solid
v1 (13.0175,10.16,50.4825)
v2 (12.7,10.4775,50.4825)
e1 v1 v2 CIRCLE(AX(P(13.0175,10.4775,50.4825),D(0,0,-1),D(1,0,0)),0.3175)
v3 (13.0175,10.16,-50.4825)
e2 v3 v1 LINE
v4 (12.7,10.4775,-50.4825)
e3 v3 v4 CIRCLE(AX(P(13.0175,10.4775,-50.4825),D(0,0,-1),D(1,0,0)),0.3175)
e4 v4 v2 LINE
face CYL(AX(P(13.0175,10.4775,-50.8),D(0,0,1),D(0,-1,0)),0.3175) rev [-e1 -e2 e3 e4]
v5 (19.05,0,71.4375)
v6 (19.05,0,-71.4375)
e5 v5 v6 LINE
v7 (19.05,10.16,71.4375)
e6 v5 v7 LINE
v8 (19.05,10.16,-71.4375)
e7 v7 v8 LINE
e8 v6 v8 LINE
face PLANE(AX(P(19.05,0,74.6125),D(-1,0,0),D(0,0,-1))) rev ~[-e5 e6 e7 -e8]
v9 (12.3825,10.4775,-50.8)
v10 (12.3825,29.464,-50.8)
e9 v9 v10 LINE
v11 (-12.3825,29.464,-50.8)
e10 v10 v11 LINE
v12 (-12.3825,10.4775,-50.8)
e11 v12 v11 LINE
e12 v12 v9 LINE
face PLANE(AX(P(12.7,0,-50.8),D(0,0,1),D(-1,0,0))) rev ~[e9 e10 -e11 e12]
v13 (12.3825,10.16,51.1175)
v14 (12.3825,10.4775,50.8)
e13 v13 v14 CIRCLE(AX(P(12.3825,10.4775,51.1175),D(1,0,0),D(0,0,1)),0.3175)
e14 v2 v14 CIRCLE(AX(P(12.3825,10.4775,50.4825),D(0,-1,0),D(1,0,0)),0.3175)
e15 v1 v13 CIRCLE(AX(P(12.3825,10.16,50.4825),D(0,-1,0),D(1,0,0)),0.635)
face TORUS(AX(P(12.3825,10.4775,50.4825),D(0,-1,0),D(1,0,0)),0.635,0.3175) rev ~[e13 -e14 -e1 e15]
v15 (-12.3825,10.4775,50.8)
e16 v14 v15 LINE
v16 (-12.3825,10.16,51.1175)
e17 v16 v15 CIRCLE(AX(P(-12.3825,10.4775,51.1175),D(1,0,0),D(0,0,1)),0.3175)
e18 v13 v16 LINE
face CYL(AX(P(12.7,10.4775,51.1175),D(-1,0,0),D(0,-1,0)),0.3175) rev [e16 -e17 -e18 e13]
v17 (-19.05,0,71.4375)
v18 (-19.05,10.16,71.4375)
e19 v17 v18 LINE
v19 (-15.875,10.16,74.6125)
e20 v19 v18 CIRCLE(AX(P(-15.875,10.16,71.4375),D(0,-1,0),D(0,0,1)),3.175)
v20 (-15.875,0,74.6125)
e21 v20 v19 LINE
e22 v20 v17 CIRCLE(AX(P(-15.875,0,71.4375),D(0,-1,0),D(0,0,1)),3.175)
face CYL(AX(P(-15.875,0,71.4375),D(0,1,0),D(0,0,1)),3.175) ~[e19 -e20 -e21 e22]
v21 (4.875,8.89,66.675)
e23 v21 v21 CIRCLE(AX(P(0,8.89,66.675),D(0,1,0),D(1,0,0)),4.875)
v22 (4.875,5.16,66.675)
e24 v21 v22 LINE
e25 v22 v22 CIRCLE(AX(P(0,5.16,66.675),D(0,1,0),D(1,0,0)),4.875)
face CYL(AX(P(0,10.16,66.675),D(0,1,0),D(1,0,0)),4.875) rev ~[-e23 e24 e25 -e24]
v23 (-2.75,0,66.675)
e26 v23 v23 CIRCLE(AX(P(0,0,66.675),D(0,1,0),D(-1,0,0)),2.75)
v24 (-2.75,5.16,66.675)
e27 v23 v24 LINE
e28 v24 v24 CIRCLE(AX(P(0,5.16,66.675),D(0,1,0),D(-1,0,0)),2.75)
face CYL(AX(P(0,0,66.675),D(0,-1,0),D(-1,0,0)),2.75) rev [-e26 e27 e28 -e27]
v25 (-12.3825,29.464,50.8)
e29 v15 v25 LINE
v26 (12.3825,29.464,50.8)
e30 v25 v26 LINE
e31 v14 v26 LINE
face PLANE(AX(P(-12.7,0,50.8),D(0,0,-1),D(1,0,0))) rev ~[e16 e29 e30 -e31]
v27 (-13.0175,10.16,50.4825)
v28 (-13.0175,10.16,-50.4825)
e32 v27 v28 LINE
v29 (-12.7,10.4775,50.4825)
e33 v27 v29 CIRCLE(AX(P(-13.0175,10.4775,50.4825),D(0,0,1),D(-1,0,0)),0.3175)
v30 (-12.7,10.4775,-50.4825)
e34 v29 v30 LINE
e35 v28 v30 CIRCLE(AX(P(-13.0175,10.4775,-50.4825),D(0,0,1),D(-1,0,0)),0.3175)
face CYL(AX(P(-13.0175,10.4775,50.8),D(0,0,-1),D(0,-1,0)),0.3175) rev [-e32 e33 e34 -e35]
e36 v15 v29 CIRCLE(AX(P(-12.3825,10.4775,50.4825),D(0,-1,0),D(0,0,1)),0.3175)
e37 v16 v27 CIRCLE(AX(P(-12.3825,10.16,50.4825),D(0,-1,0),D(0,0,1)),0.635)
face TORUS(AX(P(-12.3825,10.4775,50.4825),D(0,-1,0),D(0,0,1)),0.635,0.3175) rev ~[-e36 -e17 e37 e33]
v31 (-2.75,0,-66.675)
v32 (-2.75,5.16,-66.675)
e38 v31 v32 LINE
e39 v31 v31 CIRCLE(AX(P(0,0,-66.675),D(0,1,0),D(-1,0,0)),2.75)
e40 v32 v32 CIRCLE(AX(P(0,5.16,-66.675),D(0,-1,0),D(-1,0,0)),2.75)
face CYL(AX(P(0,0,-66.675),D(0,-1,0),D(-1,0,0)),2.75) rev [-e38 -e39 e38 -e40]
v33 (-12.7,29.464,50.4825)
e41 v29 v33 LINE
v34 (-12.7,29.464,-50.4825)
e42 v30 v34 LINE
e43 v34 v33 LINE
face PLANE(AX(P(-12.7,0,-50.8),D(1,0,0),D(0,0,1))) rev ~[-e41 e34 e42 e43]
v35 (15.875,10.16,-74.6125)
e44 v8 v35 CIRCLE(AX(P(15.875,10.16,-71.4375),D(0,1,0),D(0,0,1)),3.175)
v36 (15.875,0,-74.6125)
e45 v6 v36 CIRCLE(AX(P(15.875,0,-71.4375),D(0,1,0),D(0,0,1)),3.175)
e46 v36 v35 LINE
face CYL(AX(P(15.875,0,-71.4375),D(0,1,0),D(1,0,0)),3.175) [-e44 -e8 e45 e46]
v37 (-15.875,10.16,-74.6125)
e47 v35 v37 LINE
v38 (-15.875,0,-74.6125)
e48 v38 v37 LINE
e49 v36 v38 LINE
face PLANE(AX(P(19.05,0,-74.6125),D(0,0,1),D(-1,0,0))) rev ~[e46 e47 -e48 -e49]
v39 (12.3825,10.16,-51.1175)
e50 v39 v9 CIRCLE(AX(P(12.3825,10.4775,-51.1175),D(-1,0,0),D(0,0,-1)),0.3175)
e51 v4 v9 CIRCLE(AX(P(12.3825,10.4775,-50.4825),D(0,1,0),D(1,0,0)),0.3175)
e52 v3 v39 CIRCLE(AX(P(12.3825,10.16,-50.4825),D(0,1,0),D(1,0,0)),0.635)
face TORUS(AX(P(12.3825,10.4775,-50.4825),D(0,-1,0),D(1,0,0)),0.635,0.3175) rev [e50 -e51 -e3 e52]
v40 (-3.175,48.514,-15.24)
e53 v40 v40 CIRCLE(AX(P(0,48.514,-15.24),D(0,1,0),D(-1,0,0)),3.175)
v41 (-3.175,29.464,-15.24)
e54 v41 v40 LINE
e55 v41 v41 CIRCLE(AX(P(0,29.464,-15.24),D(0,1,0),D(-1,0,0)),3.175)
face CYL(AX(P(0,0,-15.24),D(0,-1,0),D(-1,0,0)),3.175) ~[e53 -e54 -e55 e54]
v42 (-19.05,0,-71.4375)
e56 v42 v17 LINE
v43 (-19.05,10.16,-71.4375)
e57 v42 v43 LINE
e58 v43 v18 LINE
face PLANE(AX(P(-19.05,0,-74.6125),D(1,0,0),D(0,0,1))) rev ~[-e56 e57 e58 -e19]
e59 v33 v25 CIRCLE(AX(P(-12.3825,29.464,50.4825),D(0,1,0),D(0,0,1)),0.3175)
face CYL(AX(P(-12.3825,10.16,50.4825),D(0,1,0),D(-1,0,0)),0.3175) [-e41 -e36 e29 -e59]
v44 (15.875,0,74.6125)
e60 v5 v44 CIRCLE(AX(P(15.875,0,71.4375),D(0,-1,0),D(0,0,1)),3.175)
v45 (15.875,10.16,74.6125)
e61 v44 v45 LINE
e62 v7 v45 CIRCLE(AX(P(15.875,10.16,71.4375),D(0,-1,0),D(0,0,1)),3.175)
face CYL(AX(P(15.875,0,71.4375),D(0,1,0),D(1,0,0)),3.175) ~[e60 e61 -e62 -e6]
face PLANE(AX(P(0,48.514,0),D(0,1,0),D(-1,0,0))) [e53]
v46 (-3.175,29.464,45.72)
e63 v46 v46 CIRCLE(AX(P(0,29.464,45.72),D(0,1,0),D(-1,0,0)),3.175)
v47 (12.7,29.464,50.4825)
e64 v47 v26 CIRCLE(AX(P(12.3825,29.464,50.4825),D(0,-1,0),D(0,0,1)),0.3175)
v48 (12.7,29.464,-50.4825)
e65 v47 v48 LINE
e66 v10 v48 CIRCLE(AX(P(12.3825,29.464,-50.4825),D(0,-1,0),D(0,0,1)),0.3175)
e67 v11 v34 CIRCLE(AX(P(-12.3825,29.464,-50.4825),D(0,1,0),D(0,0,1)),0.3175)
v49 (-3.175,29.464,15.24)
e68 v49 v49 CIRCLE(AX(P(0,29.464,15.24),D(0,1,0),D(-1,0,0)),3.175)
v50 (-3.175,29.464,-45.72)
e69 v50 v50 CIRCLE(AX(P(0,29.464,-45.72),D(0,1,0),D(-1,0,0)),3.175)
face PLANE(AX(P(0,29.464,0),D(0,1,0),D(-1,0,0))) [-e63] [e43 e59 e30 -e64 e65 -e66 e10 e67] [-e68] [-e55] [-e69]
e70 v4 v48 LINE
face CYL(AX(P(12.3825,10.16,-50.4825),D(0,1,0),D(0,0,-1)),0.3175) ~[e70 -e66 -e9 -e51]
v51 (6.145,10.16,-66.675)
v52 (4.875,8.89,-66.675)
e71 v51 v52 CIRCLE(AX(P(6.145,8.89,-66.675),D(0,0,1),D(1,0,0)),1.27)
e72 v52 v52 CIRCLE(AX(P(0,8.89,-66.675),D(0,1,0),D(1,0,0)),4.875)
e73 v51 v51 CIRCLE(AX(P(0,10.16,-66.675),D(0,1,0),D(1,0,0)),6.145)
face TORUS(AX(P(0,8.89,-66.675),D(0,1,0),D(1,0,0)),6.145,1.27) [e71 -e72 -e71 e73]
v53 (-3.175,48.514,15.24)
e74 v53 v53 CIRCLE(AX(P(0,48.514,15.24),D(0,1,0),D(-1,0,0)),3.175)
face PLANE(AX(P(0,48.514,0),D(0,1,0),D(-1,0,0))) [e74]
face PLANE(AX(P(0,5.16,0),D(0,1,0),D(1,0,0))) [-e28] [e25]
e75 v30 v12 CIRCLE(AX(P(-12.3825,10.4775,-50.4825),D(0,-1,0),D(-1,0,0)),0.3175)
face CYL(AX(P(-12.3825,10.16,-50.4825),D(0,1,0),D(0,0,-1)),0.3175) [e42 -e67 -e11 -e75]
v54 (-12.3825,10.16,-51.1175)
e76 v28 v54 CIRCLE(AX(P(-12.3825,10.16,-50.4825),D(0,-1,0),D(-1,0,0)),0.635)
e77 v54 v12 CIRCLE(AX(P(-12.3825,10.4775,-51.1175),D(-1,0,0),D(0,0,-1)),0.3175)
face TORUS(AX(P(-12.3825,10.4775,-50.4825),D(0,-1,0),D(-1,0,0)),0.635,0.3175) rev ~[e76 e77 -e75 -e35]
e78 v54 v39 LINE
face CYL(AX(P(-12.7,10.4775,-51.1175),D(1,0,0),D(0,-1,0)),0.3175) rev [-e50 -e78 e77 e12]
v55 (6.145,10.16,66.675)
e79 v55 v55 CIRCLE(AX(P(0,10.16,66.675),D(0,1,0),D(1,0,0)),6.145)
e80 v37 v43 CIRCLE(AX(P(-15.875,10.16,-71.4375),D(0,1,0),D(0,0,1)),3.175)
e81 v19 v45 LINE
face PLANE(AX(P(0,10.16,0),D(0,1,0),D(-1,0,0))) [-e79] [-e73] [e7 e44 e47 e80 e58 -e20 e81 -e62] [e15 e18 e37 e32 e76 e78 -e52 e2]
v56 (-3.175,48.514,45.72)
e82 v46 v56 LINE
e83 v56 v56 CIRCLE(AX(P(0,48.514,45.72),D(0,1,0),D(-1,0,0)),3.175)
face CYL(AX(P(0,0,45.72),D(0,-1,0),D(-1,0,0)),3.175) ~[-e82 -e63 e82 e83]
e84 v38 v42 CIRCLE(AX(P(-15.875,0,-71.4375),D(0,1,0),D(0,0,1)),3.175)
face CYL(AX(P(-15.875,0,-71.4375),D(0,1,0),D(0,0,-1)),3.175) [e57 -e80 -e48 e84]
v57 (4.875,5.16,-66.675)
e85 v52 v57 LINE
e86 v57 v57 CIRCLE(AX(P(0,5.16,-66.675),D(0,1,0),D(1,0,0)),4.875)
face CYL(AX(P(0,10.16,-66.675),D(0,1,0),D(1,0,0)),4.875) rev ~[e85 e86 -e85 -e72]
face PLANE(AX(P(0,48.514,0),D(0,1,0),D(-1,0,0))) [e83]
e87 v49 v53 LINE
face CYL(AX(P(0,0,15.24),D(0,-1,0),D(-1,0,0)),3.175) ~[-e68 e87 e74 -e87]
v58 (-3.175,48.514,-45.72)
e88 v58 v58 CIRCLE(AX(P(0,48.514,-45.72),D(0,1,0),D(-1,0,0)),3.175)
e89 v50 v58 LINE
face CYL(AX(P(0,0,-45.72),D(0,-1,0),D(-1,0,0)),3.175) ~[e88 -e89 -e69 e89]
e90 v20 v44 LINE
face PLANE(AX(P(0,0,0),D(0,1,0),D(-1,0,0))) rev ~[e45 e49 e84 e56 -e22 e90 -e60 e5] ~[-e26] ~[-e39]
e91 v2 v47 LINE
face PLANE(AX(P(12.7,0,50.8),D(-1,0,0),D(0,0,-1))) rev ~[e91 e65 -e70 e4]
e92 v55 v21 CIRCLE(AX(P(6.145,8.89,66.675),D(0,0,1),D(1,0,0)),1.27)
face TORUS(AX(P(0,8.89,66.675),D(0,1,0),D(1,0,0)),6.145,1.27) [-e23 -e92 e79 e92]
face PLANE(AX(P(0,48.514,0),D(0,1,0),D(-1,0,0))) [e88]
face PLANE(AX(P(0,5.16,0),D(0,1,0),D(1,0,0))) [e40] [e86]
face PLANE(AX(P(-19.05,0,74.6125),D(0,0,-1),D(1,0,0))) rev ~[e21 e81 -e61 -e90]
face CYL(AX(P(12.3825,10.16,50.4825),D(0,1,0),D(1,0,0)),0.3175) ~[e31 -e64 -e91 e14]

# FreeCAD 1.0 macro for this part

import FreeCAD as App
import Part
import Sketcher
from FreeCAD import Vector
Q = App.Units.Quantity


def edges_at(feature, points):
    """Names of the edges that pass closest to the given points."""
    edges = feature.Shape.Edges
    near = lambda p: min(range(len(edges)), key=lambda i: edges[i].distToShape(Part.Vertex(*p))[0])
    return sorted({f"Edge{near(p) + 1}" for p in points})

doc = App.newDocument("Part")
body = doc.addObject("PartDesign::Body", "Body")

sketch1 = body.newObject("Sketcher::SketchObject", "Sketch")
sketch1.AttachmentSupport = (doc.getObject("XZ_Plane"), [""])
sketch1.MapMode = "FlatFace"
sketch1.addGeometry([
    Part.LineSegment(Vector(19.05, 74.6125, 0), Vector(19.05, -74.6125, 0)),
    Part.LineSegment(Vector(19.05, -74.6125, 0), Vector(-19.05, -74.6125, 0)),
    Part.LineSegment(Vector(-19.05, -74.6125, 0), Vector(-19.05, 74.6125, 0)),
    Part.LineSegment(Vector(-19.05, 74.6125, 0), Vector(19.05, 74.6125, 0)),
    Part.Circle(Vector(0, -66.675, 0), Vector(0, 0, 1), 2.75),
    Part.Circle(Vector(0, 66.675, 0), Vector(0, 0, 1), 2.75),
], False)
sketch1.addConstraint([
    Sketcher.Constraint("Coincident", 0, 2, 1, 1),
    Sketcher.Constraint("Coincident", 1, 2, 2, 1),
    Sketcher.Constraint("Coincident", 2, 2, 3, 1),
    Sketcher.Constraint("Coincident", 3, 2, 0, 1),
    Sketcher.Constraint("Vertical", 0),
    Sketcher.Constraint("Horizontal", 1),
    Sketcher.Constraint("Vertical", 2),
    Sketcher.Constraint("Horizontal", 3),
    Sketcher.Constraint("Equal", 4, 5),
    Sketcher.Constraint("Symmetric", 4, 3, 5, 3, -1, 1),
    Sketcher.Constraint("Symmetric", 0, 2, 2, 2, -1, 1),
    Sketcher.Constraint("PointOnObject", 4, 3, -2),
    Sketcher.Constraint("DistanceX", 1, 2, 1, 1, Q("1.5 in")),
    Sketcher.Constraint("Diameter", 4, Q("5.5 mm")),
    Sketcher.Constraint("DistanceY", 0, 2, 0, 1, Q("5.875 in")),
    Sketcher.Constraint("DistanceY", 4, 3, 5, 3, Q("5.25 in")),
])
pad1 = body.newObject("PartDesign::Pad", "Pad")
pad1.Profile = sketch1
pad1.Length = Q("0.4 in")
pad1.Reversed = True

sketch2 = body.newObject("Sketcher::SketchObject", "Sketch001")
sketch2.AttachmentSupport = (doc.getObject("XZ_Plane"), [""])
sketch2.MapMode = "FlatFace"
sketch2.addGeometry([
    Part.LineSegment(Vector(12.7, 50.8, 0), Vector(12.7, -50.8, 0)),
    Part.LineSegment(Vector(12.7, -50.8, 0), Vector(-12.7, -50.8, 0)),
    Part.LineSegment(Vector(-12.7, -50.8, 0), Vector(-12.7, 50.8, 0)),
    Part.LineSegment(Vector(-12.7, 50.8, 0), Vector(12.7, 50.8, 0)),
    Part.Circle(Vector(0, -45.72, 0), Vector(0, 0, 1), 3.175),
    Part.Circle(Vector(0, -15.24, 0), Vector(0, 0, 1), 3.175),
    Part.Circle(Vector(0, 15.24, 0), Vector(0, 0, 1), 3.175),
    Part.Circle(Vector(0, 45.72, 0), Vector(0, 0, 1), 3.175),
], False)
sketch2.addConstraint([
    Sketcher.Constraint("Coincident", 0, 2, 1, 1),
    Sketcher.Constraint("Coincident", 1, 2, 2, 1),
    Sketcher.Constraint("Coincident", 2, 2, 3, 1),
    Sketcher.Constraint("Coincident", 3, 2, 0, 1),
    Sketcher.Constraint("Vertical", 0),
    Sketcher.Constraint("Horizontal", 1),
    Sketcher.Constraint("Vertical", 2),
    Sketcher.Constraint("Horizontal", 3),
    Sketcher.Constraint("Equal", 4, 5),
    Sketcher.Constraint("Equal", 5, 6),
    Sketcher.Constraint("Equal", 6, 7),
    Sketcher.Constraint("Symmetric", 5, 3, 6, 3, -1, 1),
    Sketcher.Constraint("Symmetric", 4, 3, 7, 3, -1, 1),
    Sketcher.Constraint("Symmetric", 0, 2, 2, 2, -1, 1),
    Sketcher.Constraint("PointOnObject", 4, 3, -2),
    Sketcher.Constraint("PointOnObject", 5, 3, -2),
    Sketcher.Constraint("Diameter", 4, Q("0.25 in")),
    Sketcher.Constraint("DistanceX", 1, 2, 1, 1, Q("1 in")),
    Sketcher.Constraint("DistanceY", 0, 2, 0, 1, Q("4 in")),
    Sketcher.Constraint("DistanceY", 4, 3, 5, 3, Q("1.2 in")),
    Sketcher.Constraint("DistanceY", 5, 3, 6, 3, Q("1.2 in")),
])
pad2 = body.newObject("PartDesign::Pad", "Pad001")
pad2.Profile = sketch2
pad2.Length = Q("1.16 in")
pad2.Reversed = True

sketch3 = body.newObject("Sketcher::SketchObject", "Sketch002")
sketch3.AttachmentSupport = (doc.getObject("XZ_Plane"), [""])
sketch3.MapMode = "FlatFace"
sketch3.addGeometry([
    Part.Circle(Vector(0, -15.24, 0), Vector(0, 0, 1), 3.175),
    Part.Circle(Vector(0, -45.72, 0), Vector(0, 0, 1), 3.175),
    Part.Circle(Vector(0, 15.24, 0), Vector(0, 0, 1), 3.175),
    Part.Circle(Vector(0, 45.72, 0), Vector(0, 0, 1), 3.175),
], False)
sketch3.addConstraint([
    Sketcher.Constraint("Equal", 0, 1),
    Sketcher.Constraint("Equal", 1, 2),
    Sketcher.Constraint("Equal", 2, 3),
    Sketcher.Constraint("Symmetric", 0, 3, 2, 3, -1, 1),
    Sketcher.Constraint("Symmetric", 1, 3, 3, 3, -1, 1),
    Sketcher.Constraint("PointOnObject", 0, 3, -2),
    Sketcher.Constraint("PointOnObject", 1, 3, -2),
    Sketcher.Constraint("Diameter", 0, Q("0.25 in")),
    Sketcher.Constraint("DistanceY", 1, 3, 0, 3, Q("1.2 in")),
    Sketcher.Constraint("DistanceY", 0, 3, 2, 3, Q("1.2 in")),
])
pad3 = body.newObject("PartDesign::Pad", "Pad002")
pad3.Profile = sketch3
pad3.Length = Q("1.91 in")
pad3.Reversed = True

sketch4 = body.newObject("Sketcher::SketchObject", "Sketch003")
sketch4.AttachmentSupport = (doc.getObject("XZ_Plane"), [""])
sketch4.MapMode = "FlatFace"
sketch4.AttachmentOffset = App.Placement(Vector(0, 0, -0.4 * 25.4), App.Rotation())
sketch4.addGeometry([
    Part.Circle(Vector(0, 66.675, 0), Vector(0, 0, 1), 4.875),
    Part.Circle(Vector(0, 66.675, 0), Vector(0, 0, 1), 2.75),
    Part.Circle(Vector(0, -66.675, 0), Vector(0, 0, 1), 4.875),
], False)
sketch4.addConstraint([
    Sketcher.Constraint("Coincident", 1, 3, 0, 3),
    Sketcher.Constraint("Equal", 0, 2),
    Sketcher.Constraint("Symmetric", 0, 3, 2, 3, -1, 1),
    Sketcher.Constraint("PointOnObject", 0, 3, -2),
    Sketcher.Constraint("Diameter", 0, Q("9.75 mm")),
    Sketcher.Constraint("Diameter", 1, Q("5.5 mm")),
    Sketcher.Constraint("DistanceY", 2, 3, 0, 3, Q("5.25 in")),
])
pocket1 = body.newObject("PartDesign::Pocket", "Pocket")
pocket1.Profile = sketch4
pocket1.Length = 5
pocket1.Reversed = True
doc.recompute()

fillet = body.newObject("PartDesign::Fillet", "Fillet")
fillet.Base = (pocket1, edges_at(pocket1, [
    (12.7, 19.812, 50.8),
    (-12.7, 19.812, 50.8),
    (12.7, 19.812, -50.8),
    (-12.7, 19.812, -50.8),
    (12.7, 10.16, 0),
    (0, 10.16, 50.8),
    (-12.7, 10.16, 0),
    (0, 10.16, -50.8),
]))
fillet.Radius = Q("0.0125 in")
doc.recompute()

fillet2 = body.newObject("PartDesign::Fillet", "Fillet001")
fillet2.Base = (fillet, edges_at(fillet, [
    (19.05, 5.08, 74.612),
    (-19.05, 5.08, 74.612),
    (19.05, 5.08, -74.612),
    (-19.05, 5.08, -74.612),
]))
fillet2.Radius = Q("0.125 in")
doc.recompute()

fillet3 = body.newObject("PartDesign::Fillet", "Fillet002")
fillet3.Base = (fillet2, edges_at(fillet2, [(-4.875, 10.16, 66.675), (-4.875, 10.16, -66.675)]))
fillet3.Radius = Q("0.05 in")

doc.recompute()
